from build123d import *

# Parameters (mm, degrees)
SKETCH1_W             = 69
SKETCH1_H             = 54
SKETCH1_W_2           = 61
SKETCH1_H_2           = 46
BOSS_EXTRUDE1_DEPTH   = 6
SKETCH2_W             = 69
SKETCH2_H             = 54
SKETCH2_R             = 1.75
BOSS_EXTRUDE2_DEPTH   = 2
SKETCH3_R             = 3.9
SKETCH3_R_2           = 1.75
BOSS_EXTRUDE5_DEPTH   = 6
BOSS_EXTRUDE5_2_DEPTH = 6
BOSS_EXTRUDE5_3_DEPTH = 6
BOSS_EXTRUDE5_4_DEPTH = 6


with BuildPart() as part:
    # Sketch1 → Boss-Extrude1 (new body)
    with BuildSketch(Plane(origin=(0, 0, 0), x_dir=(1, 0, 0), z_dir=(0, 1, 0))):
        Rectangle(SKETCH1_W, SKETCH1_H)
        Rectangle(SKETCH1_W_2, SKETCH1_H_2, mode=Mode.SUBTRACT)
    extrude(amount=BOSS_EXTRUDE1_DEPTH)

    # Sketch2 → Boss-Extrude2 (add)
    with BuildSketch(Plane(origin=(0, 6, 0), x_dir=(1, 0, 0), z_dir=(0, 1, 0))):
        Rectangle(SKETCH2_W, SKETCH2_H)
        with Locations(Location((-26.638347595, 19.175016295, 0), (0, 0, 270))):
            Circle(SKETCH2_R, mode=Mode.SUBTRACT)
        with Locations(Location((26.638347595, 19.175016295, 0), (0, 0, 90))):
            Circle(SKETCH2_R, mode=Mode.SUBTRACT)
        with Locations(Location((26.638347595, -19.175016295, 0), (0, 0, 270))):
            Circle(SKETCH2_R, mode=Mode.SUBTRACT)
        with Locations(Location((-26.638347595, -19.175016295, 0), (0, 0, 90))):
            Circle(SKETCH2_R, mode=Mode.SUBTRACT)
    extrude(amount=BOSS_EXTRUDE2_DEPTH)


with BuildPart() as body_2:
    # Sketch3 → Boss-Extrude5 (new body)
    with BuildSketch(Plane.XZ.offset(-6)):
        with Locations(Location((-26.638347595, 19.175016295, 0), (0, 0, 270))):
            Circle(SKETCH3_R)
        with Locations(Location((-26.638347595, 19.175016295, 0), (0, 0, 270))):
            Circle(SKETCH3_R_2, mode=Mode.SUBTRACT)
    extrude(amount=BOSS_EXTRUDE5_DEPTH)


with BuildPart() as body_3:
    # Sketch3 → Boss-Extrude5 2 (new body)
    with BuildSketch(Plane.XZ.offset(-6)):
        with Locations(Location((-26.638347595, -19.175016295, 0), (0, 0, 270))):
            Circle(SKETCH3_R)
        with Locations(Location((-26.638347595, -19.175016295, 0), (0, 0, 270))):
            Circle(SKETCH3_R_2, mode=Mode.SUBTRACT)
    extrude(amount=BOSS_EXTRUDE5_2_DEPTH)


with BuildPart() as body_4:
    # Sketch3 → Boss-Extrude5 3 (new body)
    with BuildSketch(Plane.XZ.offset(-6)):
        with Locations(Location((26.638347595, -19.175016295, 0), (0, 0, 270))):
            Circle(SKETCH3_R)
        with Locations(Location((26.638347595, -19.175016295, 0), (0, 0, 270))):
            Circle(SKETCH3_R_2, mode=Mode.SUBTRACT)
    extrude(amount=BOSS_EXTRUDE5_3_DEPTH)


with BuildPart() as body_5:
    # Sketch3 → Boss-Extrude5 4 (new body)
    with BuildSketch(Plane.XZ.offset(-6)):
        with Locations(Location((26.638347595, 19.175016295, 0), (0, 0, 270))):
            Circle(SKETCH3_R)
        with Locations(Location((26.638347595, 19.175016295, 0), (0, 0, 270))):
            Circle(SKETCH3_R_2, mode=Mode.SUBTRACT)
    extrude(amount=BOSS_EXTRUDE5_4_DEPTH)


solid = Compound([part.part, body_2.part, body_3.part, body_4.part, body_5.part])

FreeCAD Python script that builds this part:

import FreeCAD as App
import Part
import Sketcher
from FreeCAD import Vector


def add_polygon(sketch, points):
    """Adds a closed chain of lines whose ends are joined by coincident constraints."""
    first, n = sketch.GeometryCount, len(points)
    for a, b in zip(points, points[1:] + points[:1]):
        sketch.addGeometry(Part.LineSegment(App.Vector(*a, 0), App.Vector(*b, 0)), False)
    for i in range(n):
        sketch.addConstraint(Sketcher.Constraint("Coincident", first + i, 2, first + (i + 1) % n, 1))

doc = App.newDocument("Part")
body = doc.addObject("PartDesign::Body", "Body")

sketch1 = body.newObject("Sketcher::SketchObject", "Sketch")
sketch1.AttachmentSupport = (doc.getObject("XZ_Plane"), [""])
sketch1.MapMode = "FlatFace"
add_polygon(sketch1, [(-34, -27), (-34, 27), (34, 27), (34, -27)])
add_polygon(sketch1, [(30, 23), (-30, 23), (-30, -23), (30, -23)])
sketch1.addConstraint([
    Sketcher.Constraint("Vertical", 0),
    Sketcher.Constraint("Horizontal", 1),
    Sketcher.Constraint("Vertical", 2),
    Sketcher.Constraint("Horizontal", 3),
    Sketcher.Constraint("Horizontal", 4),
    Sketcher.Constraint("Vertical", 5),
    Sketcher.Constraint("Horizontal", 6),
    Sketcher.Constraint("Vertical", 7),
    Sketcher.Constraint("Symmetric", 0, 2, 2, 2, -1, 1),
    Sketcher.Constraint("Symmetric", 4, 2, 6, 2, -1, 1),
    Sketcher.Constraint("DistanceX", 1, 1, 1, 2, 69.0),
    Sketcher.Constraint("DistanceX", 4, 2, 4, 1, 61.0),
    Sketcher.Constraint("DistanceY", 0, 1, 0, 2, 54.0),
    Sketcher.Constraint("DistanceY", 5, 2, 5, 1, 46.0),
])
pad1 = body.newObject("PartDesign::Pad", "Pad")
pad1.Profile = sketch1
pad1.Length = 6
pad1.Reversed = True

sketch2 = body.newObject("Sketcher::SketchObject", "Sketch001")
sketch2.AttachmentSupport = (doc.getObject("XZ_Plane"), [""])
sketch2.MapMode = "FlatFace"
sketch2.AttachmentOffset = App.Placement(Vector(0, 0, -6), App.Rotation())
add_polygon(sketch2, [(-34.5, -27), (-34.5, 27), (34.5, 27), (34.5, -27)])
sketch2.addGeometry(Part.Circle(Vector(-26.6, 19.2, 0), Vector(0, 0, 1), 1.8), False)
sketch2.addGeometry(Part.Circle(Vector(26.6, 19.2, 0), Vector(0, 0, 1), 1.8), False)
sketch2.addGeometry(Part.Circle(Vector(-26.6, -19.2, 0), Vector(0, 0, 1), 1.8), False)
sketch2.addGeometry(Part.Circle(Vector(26.6, -19.2, 0), Vector(0, 0, 1), 1.8), False)
sketch2.addConstraint([
    Sketcher.Constraint("Vertical", 0),
    Sketcher.Constraint("Horizontal", 1),
    Sketcher.Constraint("Vertical", 2),
    Sketcher.Constraint("Horizontal", 3),
    Sketcher.Constraint("Equal", 4, 5),
    Sketcher.Constraint("Equal", 5, 6),
    Sketcher.Constraint("Equal", 6, 7),
    Sketcher.Constraint("Symmetric", 5, 3, 6, 3, -1, 1),
    Sketcher.Constraint("Symmetric", 4, 3, 7, 3, -1, 1),
    Sketcher.Constraint("Symmetric", 0, 2, 2, 2, -1, 1),
    Sketcher.Constraint("Symmetric", 4, 3, 5, 3, -2),
    Sketcher.Constraint("Diameter", 4, 3.5),
    Sketcher.Constraint("DistanceX", 1, 1, 1, 2, 69.0),
    Sketcher.Constraint("DistanceY", 0, 1, 0, 2, 54.0),
    Sketcher.Constraint("DistanceX", 4, 3, -1, 1, 26.638348),
    Sketcher.Constraint("DistanceY", -1, 1, 4, 3, 19.175016),
])
pad2 = body.newObject("PartDesign::Pad", "Pad001")
pad2.Profile = sketch2
pad2.Length = 2
pad2.Reversed = True
body2 = doc.addObject("PartDesign::Body", "Body001")

sketch3 = body2.newObject("Sketcher::SketchObject", "Sketch002")
sketch3.AttachmentSupport = (doc.getObject("XZ_Plane001"), [""])
sketch3.MapMode = "FlatFace"
sketch3.AttachmentOffset = App.Placement(Vector(0, 0, -6), App.Rotation())
sketch3.addGeometry([
    Part.Circle(Vector(-26.6, 19.2, 0), Vector(0, 0, 1), 3.9),
    Part.Circle(Vector(-26.6, 19.2, 0), Vector(0, 0, 1), 1.8),
], False)
sketch3.addConstraint([
    Sketcher.Constraint("Coincident", 1, 3, 0, 3),
    Sketcher.Constraint("Diameter", 0, 7.8),
    Sketcher.Constraint("Diameter", 1, 3.5),
    Sketcher.Constraint("DistanceX", 0, 3, -1, 1, 26.638348),
    Sketcher.Constraint("DistanceY", -1, 1, 0, 3, 19.175016),
])
pad3 = body2.newObject("PartDesign::Pad", "Pad002")
pad3.Profile = sketch3
pad3.Length = 6
body3 = doc.addObject("PartDesign::Body", "Body002")

sketch4 = body3.newObject("Sketcher::SketchObject", "Sketch003")
sketch4.AttachmentSupport = (doc.getObject("XZ_Plane002"), [""])
sketch4.MapMode = "FlatFace"
sketch4.AttachmentOffset = App.Placement(Vector(0, 0, -6), App.Rotation())
sketch4.addGeometry([
    Part.Circle(Vector(-26.6, -19.2, 0), Vector(0, 0, 1), 3.9),
    Part.Circle(Vector(-26.6, -19.2, 0), Vector(0, 0, 1), 1.8),
], False)
sketch4.addConstraint([
    Sketcher.Constraint("Coincident", 1, 3, 0, 3),
    Sketcher.Constraint("Diameter", 0, 7.8),
    Sketcher.Constraint("Diameter", 1, 3.5),
    Sketcher.Constraint("DistanceX", 0, 3, -1, 1, 26.638348),
    Sketcher.Constraint("DistanceY", 0, 3, -1, 1, 19.175016),
])
pad4 = body3.newObject("PartDesign::Pad", "Pad003")
pad4.Profile = sketch4
pad4.Length = 6
body4 = doc.addObject("PartDesign::Body", "Body003")

sketch5 = body4.newObject("Sketcher::SketchObject", "Sketch004")
sketch5.AttachmentSupport = (doc.getObject("XZ_Plane003"), [""])
sketch5.MapMode = "FlatFace"
sketch5.AttachmentOffset = App.Placement(Vector(0, 0, -6), App.Rotation())
sketch5.addGeometry([
    Part.Circle(Vector(26.6, -19.2, 0), Vector(0, 0, 1), 3.9),
    Part.Circle(Vector(26.6, -19.2, 0), Vector(0, 0, 1), 1.8),
], False)
sketch5.addConstraint([
    Sketcher.Constraint("Coincident", 1, 3, 0, 3),
    Sketcher.Constraint("Diameter", 0, 7.8),
    Sketcher.Constraint("Diameter", 1, 3.5),
    Sketcher.Constraint("DistanceX", -1, 1, 0, 3, 26.638348),
    Sketcher.Constraint("DistanceY", 0, 3, -1, 1, 19.175016),
])
pad5 = body4.newObject("PartDesign::Pad", "Pad004")
pad5.Profile = sketch5
pad5.Length = 6
body5 = doc.addObject("PartDesign::Body", "Body004")

sketch6 = body5.newObject("Sketcher::SketchObject", "Sketch005")
sketch6.AttachmentSupport = (doc.getObject("XZ_Plane004"), [""])
sketch6.MapMode = "FlatFace"
sketch6.AttachmentOffset = App.Placement(Vector(0, 0, -6), App.Rotation())
sketch6.addGeometry([
    Part.Circle(Vector(26.6, 19.2, 0), Vector(0, 0, 1), 3.9),
    Part.Circle(Vector(26.6, 19.2, 0), Vector(0, 0, 1), 1.8),
], False)
sketch6.addConstraint([
    Sketcher.Constraint("Coincident", 1, 3, 0, 3),
    Sketcher.Constraint("Diameter", 0, 7.8),
    Sketcher.Constraint("Diameter", 1, 3.5),
    Sketcher.Constraint("DistanceX", -1, 1, 0, 3, 26.638348),
    Sketcher.Constraint("DistanceY", -1, 1, 0, 3, 19.175016),
])
pad6 = body5.newObject("PartDesign::Pad", "Pad005")
pad6.Profile = sketch6
pad6.Length = 6

doc.recompute()
